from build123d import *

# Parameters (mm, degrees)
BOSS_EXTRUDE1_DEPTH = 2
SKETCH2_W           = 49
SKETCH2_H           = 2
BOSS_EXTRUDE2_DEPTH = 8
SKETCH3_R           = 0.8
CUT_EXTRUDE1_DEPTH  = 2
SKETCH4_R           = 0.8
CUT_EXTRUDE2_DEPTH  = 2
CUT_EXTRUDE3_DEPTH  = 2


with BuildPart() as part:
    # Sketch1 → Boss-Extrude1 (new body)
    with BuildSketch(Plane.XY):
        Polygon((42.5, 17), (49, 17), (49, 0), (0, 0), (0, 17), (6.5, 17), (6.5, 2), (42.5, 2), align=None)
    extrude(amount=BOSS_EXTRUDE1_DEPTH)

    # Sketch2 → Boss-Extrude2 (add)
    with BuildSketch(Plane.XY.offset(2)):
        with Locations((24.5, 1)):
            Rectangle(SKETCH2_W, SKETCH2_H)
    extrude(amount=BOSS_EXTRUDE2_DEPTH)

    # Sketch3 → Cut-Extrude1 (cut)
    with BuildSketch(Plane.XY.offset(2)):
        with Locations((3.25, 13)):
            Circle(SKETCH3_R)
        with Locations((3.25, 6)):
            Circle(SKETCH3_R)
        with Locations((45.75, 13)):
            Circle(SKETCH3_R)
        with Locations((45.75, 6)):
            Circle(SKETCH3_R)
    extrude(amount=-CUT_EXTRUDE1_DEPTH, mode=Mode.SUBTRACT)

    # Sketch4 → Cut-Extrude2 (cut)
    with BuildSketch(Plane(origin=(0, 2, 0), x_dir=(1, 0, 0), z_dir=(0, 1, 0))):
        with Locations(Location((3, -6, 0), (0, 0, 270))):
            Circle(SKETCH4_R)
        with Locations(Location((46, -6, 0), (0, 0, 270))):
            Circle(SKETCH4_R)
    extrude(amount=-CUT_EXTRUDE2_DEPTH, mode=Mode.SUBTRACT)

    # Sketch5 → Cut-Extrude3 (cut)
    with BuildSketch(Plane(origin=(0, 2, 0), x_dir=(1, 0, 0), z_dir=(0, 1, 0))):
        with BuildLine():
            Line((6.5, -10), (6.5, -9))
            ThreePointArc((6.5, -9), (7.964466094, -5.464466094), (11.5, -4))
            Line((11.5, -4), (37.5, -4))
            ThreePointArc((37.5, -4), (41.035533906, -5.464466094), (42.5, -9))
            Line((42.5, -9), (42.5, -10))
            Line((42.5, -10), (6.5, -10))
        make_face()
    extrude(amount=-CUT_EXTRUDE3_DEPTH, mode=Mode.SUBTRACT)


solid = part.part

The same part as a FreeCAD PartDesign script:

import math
import FreeCAD as App
import Part
import Sketcher

V = App.Vector
Q = App.Units.Quantity

doc = App.newDocument("Part")
body = doc.addObject("PartDesign::Body", "Body")

# Sketch on XY plane
sketch1 = doc.addObject("Sketcher::SketchObject", "Sketch")
body.addObject(sketch1)
sketch1.AttachmentSupport = (doc.XY_Plane, [""])
sketch1.MapMode = "FlatFace"
sketch1.addGeometry([
    Part.LineSegment(V(49, 17, 0), V(42, 17, 0)),  # 0
    Part.LineSegment(V(42, 17, 0), V(42, 2, 0)),  # 1
    Part.LineSegment(V(42, 2, 0), V(6, 2, 0)),  # 2
    Part.LineSegment(V(6, 2, 0), V(6, 17, 0)),  # 3
    Part.LineSegment(V(6, 17, 0), V(0, 17, 0)),  # 4
    Part.LineSegment(V(0, 17, 0), V(0, 0, 0)),  # 5
    Part.LineSegment(V(0, 0, 0), V(49, 0, 0)),  # 6
    Part.LineSegment(V(49, 0, 0), V(49, 17, 0)),  # 7
], False)
sketch1.addConstraint([
    Sketcher.Constraint("Coincident", 0, 2, 1, 1),
    Sketcher.Constraint("Coincident", 1, 2, 2, 1),
    Sketcher.Constraint("Coincident", 2, 2, 3, 1),
    Sketcher.Constraint("Coincident", 3, 2, 4, 1),
    Sketcher.Constraint("Coincident", 4, 2, 5, 1),
    Sketcher.Constraint("Coincident", 5, 2, 6, 1),
    Sketcher.Constraint("Coincident", 6, 2, 7, 1),
    Sketcher.Constraint("Coincident", 7, 2, 0, 1),
    Sketcher.Constraint("Horizontal", 0),
    Sketcher.Constraint("Vertical", 1),
    Sketcher.Constraint("Horizontal", 2),
    Sketcher.Constraint("Vertical", 3),
    Sketcher.Constraint("Horizontal", 4),
    Sketcher.Constraint("Vertical", 5),
    Sketcher.Constraint("Horizontal", 6),
    Sketcher.Constraint("Vertical", 7),
    Sketcher.Constraint("Coincident", 5, 2, -1, 1),
    Sketcher.Constraint("Horizontal", 0, 2, 3, 2),
    Sketcher.Constraint("Equal", 0, 4),
    Sketcher.Constraint("DistanceX", 2, 2, 2, 1, Q("36 mm")),
    Sketcher.Constraint("DistanceX", 6, 1, 6, 2, Q("49 mm")),
    Sketcher.Constraint("DistanceY", 1, 2, 1, 1, Q("15 mm")),
    Sketcher.Constraint("DistanceY", 5, 2, 5, 1, Q("17 mm")),
])
pad1 = doc.addObject("PartDesign::Pad", "Pad")
body.addObject(pad1)
pad1.Profile = sketch1
pad1.Length = 2

# Sketch on XY plane
sketch2 = doc.addObject("Sketcher::SketchObject", "Sketch001")
body.addObject(sketch2)
sketch2.AttachmentSupport = (doc.XY_Plane, [""])
sketch2.MapMode = "FlatFace"
sketch2.AttachmentOffset = App.Placement(V(0, 0, 2), App.Rotation())
sketch2.addGeometry([
    Part.LineSegment(V(0, 2, 0), V(0, 0, 0)),
    Part.LineSegment(V(0, 0, 0), V(49, 0, 0)),
    Part.LineSegment(V(49, 0, 0), V(49, 2, 0)),
    Part.LineSegment(V(49, 2, 0), V(0, 2, 0)),
], False)
sketch2.addConstraint([
    Sketcher.Constraint("Coincident", 0, 2, 1, 1),
    Sketcher.Constraint("Coincident", 1, 2, 2, 1),
    Sketcher.Constraint("Coincident", 2, 2, 3, 1),
    Sketcher.Constraint("Coincident", 3, 2, 0, 1),
    Sketcher.Constraint("Vertical", 0),
    Sketcher.Constraint("Horizontal", 1),
    Sketcher.Constraint("Vertical", 2),
    Sketcher.Constraint("Horizontal", 3),
    Sketcher.Constraint("Coincident", 0, 2, -1, 1),
    Sketcher.Constraint("DistanceX", 1, 1, 1, 2, Q("49 mm")),
    Sketcher.Constraint("DistanceY", 0, 2, 0, 1, Q("2 mm")),
])
pad2 = doc.addObject("PartDesign::Pad", "Pad001")
body.addObject(pad2)
pad2.Profile = sketch2
pad2.Length = 8

# Sketch on XY plane
sketch3 = doc.addObject("Sketcher::SketchObject", "Sketch002")
body.addObject(sketch3)
sketch3.AttachmentSupport = (doc.XY_Plane, [""])
sketch3.MapMode = "FlatFace"
sketch3.AttachmentOffset = App.Placement(V(0, 0, 2), App.Rotation())
sketch3.addGeometry([
    Part.Circle(V(3.2, 13, 0), V(0, 0, 1), 0.8),
    Part.Circle(V(3.2, 6, 0), V(0, 0, 1), 0.8),
    Part.Circle(V(45.8, 13, 0), V(0, 0, 1), 0.8),
    Part.Circle(V(45.8, 6, 0), V(0, 0, 1), 0.8),
], False)
sketch3.addConstraint([
    Sketcher.Constraint("Equal", 0, 1),
    Sketcher.Constraint("Equal", 1, 2),
    Sketcher.Constraint("Equal", 2, 3),
    Sketcher.Constraint("Horizontal", 0, 3, 2, 3),
    Sketcher.Constraint("Horizontal", 1, 3, 3, 3),
    Sketcher.Constraint("Vertical", 0, 3, 1, 3),
    Sketcher.Constraint("Vertical", 2, 3, 3, 3),
    Sketcher.Constraint("Diameter", 0, Q("1.6 mm")),
    Sketcher.Constraint("DistanceY", -1, 1, 0, 3, Q("13 mm")),
    Sketcher.Constraint("DistanceY", -1, 1, 1, 3, Q("6 mm")),
    Sketcher.Constraint("DistanceX", 0, 3, 2, 3, Q("42.5 mm")),
    Sketcher.Constraint("DistanceX", -1, 1, 0, 3, Q("3.25 mm")),
])
pocket1 = doc.addObject("PartDesign::Pocket", "Pocket")
body.addObject(pocket1)
pocket1.Profile = sketch3
pocket1.Length = 2

# Sketch on XZ plane
sketch4 = doc.addObject("Sketcher::SketchObject", "Sketch003")
body.addObject(sketch4)
sketch4.AttachmentSupport = (doc.XZ_Plane, [""])
sketch4.MapMode = "FlatFace"
sketch4.AttachmentOffset = App.Placement(V(0, 0, -2), App.Rotation())
sketch4.addGeometry([
    Part.Circle(V(3, 6, 0), V(0, 0, 1), 0.8),
    Part.Circle(V(46, 6, 0), V(0, 0, 1), 0.8),
], False)
sketch4.addConstraint([
    Sketcher.Constraint("Equal", 0, 1),
    Sketcher.Constraint("Horizontal", 0, 3, 1, 3),
    Sketcher.Constraint("Diameter", 0, Q("1.6 mm")),
    Sketcher.Constraint("DistanceX", -1, 1, 0, 3, Q("3 mm")),
    Sketcher.Constraint("DistanceY", -1, 1, 0, 3, Q("6 mm")),
    Sketcher.Constraint("DistanceX", -1, 1, 1, 3, Q("46 mm")),
])
pocket2 = doc.addObject("PartDesign::Pocket", "Pocket001")
body.addObject(pocket2)
pocket2.Profile = sketch4
pocket2.Length = 2
pocket2.Reversed = True

# Sketch on XZ plane
sketch5 = doc.addObject("Sketcher::SketchObject", "Sketch004")
body.addObject(sketch5)
sketch5.AttachmentSupport = (doc.XZ_Plane, [""])
sketch5.MapMode = "FlatFace"
sketch5.AttachmentOffset = App.Placement(V(0, 0, -2), App.Rotation())
sketch5.addGeometry([
    Part.LineSegment(V(6.5, 9, 0), V(6.5, 10, 0)),  # 0
    Part.LineSegment(V(6.5, 10, 0), V(42.5, 10, 0)),  # 1
    Part.LineSegment(V(42.5, 10, 0), V(42.5, 9, 0)),  # 2
    Part.ArcOfCircle(Part.Circle(V(37.5, 9, 0), V(0, 0, 1), 5), math.radians(-90), math.radians(0)),  # 3
    Part.LineSegment(V(37.5, 4, 0), V(11.5, 4, 0)),  # 4
    Part.ArcOfCircle(Part.Circle(V(11.5, 9, 0), V(0, 0, 1), 5), math.radians(180), math.radians(270)),  # 5
], False)
sketch5.addConstraint([
    Sketcher.Constraint("Coincident", 0, 2, 1, 1),
    Sketcher.Constraint("Coincident", 1, 2, 2, 1),
    Sketcher.Constraint("Tangent", 2, 2, 3, 2),
    Sketcher.Constraint("Tangent", 3, 1, 4, 1),
    Sketcher.Constraint("Tangent", 4, 2, 5, 2),
    Sketcher.Constraint("Tangent", 5, 1, 0, 1),
    Sketcher.Constraint("Vertical", 0),
    Sketcher.Constraint("Horizontal", 1),
    Sketcher.Constraint("Vertical", 2),
    Sketcher.Constraint("Horizontal", 4),
    Sketcher.Constraint("Equal", 3, 5),
    Sketcher.Constraint("Radius", 3, Q("5 mm")),
    Sketcher.Constraint("DistanceX", 1, 1, 1, 2, Q("36 mm")),
    Sketcher.Constraint("DistanceY", 0, 1, 0, 2, Q("1 mm")),
    Sketcher.Constraint("DistanceY", -1, 1, 3, 3, Q("9 mm")),
    Sketcher.Constraint("DistanceX", -1, 1, 3, 3, Q("37.5 mm")),
])
pocket3 = doc.addObject("PartDesign::Pocket", "Pocket002")
body.addObject(pocket3)
pocket3.Profile = sketch5
pocket3.Length = 2
pocket3.Reversed = True

doc.recompute()
